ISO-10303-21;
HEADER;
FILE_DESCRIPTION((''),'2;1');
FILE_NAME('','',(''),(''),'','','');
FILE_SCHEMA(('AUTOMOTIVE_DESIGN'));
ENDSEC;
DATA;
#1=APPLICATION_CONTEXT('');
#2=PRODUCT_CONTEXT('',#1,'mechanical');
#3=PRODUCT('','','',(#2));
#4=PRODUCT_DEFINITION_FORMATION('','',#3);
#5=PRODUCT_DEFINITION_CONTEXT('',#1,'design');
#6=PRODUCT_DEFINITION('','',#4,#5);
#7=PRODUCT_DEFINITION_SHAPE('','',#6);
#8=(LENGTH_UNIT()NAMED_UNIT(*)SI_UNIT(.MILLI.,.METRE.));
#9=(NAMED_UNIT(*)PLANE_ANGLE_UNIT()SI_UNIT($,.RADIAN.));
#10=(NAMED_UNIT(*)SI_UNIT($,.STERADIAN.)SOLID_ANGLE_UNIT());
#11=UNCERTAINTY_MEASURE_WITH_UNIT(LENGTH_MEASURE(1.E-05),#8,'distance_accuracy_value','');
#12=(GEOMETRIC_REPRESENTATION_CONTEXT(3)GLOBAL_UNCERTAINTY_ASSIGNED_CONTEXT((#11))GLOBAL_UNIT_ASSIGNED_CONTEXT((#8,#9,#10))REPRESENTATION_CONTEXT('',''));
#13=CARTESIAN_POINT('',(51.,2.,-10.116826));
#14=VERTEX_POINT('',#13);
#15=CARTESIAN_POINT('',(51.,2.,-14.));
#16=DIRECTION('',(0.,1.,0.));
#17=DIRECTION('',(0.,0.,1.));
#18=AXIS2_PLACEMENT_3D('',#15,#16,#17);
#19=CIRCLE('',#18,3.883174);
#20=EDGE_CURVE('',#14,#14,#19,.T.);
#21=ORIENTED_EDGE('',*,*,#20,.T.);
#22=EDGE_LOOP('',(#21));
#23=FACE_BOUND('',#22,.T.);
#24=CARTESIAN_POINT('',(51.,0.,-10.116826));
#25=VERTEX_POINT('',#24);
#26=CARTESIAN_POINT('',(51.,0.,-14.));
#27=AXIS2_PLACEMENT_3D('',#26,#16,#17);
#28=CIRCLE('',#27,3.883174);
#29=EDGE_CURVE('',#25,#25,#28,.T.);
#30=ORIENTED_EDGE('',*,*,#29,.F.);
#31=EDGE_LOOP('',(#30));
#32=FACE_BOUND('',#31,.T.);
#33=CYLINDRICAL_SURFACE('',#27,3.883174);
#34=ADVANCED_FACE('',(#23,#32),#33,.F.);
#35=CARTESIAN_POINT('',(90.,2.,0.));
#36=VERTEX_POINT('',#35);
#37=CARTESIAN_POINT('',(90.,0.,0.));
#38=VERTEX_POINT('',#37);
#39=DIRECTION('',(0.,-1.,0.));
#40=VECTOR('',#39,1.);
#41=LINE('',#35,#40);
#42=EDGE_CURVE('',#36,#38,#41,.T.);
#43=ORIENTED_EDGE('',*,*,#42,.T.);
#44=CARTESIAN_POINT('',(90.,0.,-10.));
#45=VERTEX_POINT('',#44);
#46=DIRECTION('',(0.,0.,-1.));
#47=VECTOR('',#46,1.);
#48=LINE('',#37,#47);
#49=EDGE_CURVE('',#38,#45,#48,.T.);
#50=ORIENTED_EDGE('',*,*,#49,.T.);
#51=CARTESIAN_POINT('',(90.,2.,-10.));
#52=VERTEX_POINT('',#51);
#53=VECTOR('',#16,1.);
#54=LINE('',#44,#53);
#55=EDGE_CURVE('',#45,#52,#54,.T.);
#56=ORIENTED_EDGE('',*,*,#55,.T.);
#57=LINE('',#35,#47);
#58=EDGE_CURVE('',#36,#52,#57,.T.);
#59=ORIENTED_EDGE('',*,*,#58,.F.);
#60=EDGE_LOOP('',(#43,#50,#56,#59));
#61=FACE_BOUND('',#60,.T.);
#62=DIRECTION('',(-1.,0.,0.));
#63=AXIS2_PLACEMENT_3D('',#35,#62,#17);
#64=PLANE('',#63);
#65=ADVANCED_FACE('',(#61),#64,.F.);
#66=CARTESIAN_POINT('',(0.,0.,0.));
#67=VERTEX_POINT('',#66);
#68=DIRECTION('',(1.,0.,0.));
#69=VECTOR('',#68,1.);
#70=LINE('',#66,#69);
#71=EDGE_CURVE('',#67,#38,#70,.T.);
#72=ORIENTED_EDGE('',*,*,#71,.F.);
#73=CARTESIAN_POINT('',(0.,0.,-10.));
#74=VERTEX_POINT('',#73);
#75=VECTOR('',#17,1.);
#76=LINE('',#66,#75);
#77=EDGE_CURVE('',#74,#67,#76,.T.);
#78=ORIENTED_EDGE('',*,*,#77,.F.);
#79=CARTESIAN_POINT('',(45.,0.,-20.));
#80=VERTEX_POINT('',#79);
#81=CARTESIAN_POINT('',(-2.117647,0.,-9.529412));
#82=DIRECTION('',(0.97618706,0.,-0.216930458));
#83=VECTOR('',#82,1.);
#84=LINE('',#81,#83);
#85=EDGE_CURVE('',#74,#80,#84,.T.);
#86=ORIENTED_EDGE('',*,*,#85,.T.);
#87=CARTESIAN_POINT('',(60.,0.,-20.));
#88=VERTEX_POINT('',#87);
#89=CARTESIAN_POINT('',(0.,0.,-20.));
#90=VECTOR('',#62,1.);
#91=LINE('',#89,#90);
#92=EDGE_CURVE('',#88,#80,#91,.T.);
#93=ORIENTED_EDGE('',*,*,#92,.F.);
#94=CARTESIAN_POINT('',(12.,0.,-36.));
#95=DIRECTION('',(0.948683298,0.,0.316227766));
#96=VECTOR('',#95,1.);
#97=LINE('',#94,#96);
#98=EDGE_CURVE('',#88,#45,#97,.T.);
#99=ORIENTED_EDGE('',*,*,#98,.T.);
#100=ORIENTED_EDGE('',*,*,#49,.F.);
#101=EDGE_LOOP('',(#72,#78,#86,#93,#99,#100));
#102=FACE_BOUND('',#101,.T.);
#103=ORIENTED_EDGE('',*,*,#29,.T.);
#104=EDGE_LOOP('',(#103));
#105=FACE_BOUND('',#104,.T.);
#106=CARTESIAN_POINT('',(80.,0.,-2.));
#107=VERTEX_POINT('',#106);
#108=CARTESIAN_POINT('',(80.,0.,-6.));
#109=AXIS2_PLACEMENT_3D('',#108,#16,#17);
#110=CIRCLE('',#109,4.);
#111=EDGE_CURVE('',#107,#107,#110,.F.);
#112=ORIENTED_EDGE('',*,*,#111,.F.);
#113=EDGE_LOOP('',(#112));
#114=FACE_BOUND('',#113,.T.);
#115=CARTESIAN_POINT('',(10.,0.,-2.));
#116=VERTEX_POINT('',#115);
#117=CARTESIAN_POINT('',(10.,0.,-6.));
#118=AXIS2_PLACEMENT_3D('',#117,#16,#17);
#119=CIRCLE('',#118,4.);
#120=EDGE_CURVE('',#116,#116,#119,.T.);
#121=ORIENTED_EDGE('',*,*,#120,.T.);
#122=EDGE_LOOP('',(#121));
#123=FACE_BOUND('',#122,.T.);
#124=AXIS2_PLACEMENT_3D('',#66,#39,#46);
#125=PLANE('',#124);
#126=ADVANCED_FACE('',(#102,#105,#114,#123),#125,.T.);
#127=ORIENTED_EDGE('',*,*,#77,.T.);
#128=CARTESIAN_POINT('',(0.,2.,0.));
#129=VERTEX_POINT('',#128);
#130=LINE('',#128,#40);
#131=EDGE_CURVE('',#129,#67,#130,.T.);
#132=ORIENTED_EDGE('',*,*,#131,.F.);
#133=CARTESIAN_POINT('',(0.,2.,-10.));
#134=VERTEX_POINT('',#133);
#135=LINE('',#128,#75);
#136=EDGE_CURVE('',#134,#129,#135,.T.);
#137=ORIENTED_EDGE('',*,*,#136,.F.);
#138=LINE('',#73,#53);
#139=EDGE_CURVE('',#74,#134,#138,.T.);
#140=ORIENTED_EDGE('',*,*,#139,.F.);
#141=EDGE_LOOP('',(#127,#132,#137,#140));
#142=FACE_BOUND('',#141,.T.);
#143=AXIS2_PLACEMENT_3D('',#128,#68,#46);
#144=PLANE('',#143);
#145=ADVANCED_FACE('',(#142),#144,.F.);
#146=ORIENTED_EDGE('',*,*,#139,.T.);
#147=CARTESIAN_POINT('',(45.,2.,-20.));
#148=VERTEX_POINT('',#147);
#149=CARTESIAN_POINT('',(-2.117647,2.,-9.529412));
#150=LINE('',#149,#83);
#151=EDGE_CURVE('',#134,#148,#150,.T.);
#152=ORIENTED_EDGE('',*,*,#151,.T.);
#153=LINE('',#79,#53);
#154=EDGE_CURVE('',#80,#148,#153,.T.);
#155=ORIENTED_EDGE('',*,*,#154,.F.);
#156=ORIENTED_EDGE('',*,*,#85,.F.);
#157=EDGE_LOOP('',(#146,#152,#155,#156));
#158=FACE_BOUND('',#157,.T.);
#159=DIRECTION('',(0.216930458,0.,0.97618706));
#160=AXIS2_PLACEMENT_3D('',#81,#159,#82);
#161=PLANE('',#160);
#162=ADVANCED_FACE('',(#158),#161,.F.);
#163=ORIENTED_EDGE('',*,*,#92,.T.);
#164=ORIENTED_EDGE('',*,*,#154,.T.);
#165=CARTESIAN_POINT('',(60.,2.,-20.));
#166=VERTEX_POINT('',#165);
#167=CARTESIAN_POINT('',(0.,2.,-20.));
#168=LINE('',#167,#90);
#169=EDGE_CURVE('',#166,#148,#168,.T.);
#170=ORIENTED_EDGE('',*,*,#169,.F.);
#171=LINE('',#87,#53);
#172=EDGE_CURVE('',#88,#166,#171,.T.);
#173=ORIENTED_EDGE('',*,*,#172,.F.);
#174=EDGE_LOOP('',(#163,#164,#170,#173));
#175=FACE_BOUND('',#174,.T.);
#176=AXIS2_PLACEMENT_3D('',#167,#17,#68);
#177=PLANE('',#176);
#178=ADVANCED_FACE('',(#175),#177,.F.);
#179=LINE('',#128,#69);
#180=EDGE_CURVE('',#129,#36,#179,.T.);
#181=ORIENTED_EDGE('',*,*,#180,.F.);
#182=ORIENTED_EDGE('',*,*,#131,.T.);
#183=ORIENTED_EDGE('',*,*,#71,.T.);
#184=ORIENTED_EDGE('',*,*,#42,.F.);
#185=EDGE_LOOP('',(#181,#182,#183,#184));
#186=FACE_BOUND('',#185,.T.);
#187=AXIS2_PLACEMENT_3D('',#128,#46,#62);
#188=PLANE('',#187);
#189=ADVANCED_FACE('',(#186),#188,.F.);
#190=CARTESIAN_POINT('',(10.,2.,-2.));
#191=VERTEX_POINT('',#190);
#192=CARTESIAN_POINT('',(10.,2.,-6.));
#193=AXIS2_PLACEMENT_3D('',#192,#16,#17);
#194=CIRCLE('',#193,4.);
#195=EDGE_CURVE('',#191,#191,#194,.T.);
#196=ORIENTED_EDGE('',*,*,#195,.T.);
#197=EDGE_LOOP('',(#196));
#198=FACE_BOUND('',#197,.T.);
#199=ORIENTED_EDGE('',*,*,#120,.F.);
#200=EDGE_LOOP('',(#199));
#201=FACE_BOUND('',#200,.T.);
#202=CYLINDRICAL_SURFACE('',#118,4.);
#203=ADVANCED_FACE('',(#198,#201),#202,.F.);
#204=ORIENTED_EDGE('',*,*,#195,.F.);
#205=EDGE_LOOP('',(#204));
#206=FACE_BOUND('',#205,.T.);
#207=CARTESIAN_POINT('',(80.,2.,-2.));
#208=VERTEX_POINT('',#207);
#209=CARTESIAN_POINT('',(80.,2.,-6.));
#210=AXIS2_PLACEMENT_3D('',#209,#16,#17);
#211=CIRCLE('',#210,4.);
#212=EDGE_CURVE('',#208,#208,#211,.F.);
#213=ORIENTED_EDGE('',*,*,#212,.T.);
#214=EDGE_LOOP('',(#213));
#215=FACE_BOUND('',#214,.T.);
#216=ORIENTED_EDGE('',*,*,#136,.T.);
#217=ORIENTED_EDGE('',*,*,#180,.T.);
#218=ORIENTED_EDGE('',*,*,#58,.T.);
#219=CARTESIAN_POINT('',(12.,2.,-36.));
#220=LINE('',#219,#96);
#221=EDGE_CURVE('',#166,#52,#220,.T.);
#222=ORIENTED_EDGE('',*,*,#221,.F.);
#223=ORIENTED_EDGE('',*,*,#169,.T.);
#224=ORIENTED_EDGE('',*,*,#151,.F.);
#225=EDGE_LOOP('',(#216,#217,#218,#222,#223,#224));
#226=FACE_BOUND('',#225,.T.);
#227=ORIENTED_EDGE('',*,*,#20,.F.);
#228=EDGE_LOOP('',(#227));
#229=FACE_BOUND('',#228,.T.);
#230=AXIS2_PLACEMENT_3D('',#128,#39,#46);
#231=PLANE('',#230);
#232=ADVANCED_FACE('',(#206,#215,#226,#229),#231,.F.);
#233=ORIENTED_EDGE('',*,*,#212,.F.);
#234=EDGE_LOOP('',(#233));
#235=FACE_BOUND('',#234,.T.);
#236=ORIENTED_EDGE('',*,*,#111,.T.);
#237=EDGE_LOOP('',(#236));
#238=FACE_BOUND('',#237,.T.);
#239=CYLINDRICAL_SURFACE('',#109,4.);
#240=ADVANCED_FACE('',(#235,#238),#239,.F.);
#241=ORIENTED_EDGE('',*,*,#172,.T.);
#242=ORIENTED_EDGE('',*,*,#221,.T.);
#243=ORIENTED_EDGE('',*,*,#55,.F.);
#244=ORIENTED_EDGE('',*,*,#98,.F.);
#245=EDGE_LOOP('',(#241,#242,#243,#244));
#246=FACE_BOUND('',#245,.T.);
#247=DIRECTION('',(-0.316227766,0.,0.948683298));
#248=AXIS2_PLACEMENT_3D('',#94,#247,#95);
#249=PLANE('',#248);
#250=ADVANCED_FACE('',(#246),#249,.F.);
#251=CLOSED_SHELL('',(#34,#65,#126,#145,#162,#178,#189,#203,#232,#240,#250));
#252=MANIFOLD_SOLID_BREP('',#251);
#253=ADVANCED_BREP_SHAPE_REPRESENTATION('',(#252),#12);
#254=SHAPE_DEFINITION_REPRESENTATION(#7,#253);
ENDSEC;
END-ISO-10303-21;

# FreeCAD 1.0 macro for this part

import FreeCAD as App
import Part
import Sketcher
from FreeCAD import Vector


def add_polygon(sketch, points):
    """Adds a closed chain of lines whose ends are joined by coincident constraints."""
    first, n = sketch.GeometryCount, len(points)
    for a, b in zip(points, points[1:] + points[:1]):
        sketch.addGeometry(Part.LineSegment(App.Vector(*a, 0), App.Vector(*b, 0)), False)
    for i in range(n):
        sketch.addConstraint(Sketcher.Constraint("Coincident", first + i, 2, first + (i + 1) % n, 1))

doc = App.newDocument("Part")
params = doc.addObject("Spreadsheet::Sheet", "Params")
for row, (alias, value) in enumerate([
    ("sketch1_width", "90 mm"),
    ("sketch1_height", "20 mm"),
    ("pad1_length", "2 mm"),
    ("sketch2_diameter", "8 mm"),
    ("sketch2_width", "45 mm"),
    ("sketch2_width2", "30 mm"),
    ("sketch2_height", "10 mm"),
    ("pocket1_length", "2 mm"),
], start=1):
    params.set(f"A{row}", alias)
    params.set(f"B{row}", "=" + value)
    params.setAlias(f"B{row}", alias)

body = doc.addObject("PartDesign::Body", "Body")

# Sketch on XZ plane
sketch1 = body.newObject("Sketcher::SketchObject", "Sketch")
sketch1.AttachmentSupport = (doc.getObject("XZ_Plane"), [""])
sketch1.MapMode = "FlatFace"
add_polygon(sketch1, [(0, -20), (0, 0), (90, 0), (90, -20)])  # lines 0-3
sketch1.addConstraint(Sketcher.Constraint("Vertical", 0))
sketch1.addConstraint(Sketcher.Constraint("Horizontal", 1))
sketch1.addConstraint(Sketcher.Constraint("Vertical", 2))
sketch1.addConstraint(Sketcher.Constraint("Horizontal", 3))
sketch1.addConstraint(Sketcher.Constraint("Coincident", 0, 2, -1, 1))
sketch1.addConstraint(Sketcher.Constraint("DistanceX", 1, 1, 1, 2, 90.0))
sketch1.addConstraint(Sketcher.Constraint("DistanceY", 0, 1, 0, 2, 20.0))
sketch1.setExpression("Constraints[9]", "Params.sketch1_width")
sketch1.setExpression("Constraints[10]", "Params.sketch1_height")
pad1 = body.newObject("PartDesign::Pad", "Pad")
pad1.Profile = sketch1
pad1.setExpression("Length", "Params.pad1_length")
pad1.Reversed = True

# Sketch on XZ plane
sketch2 = body.newObject("Sketcher::SketchObject", "Sketch001")
sketch2.AttachmentSupport = (doc.getObject("XZ_Plane"), [""])
sketch2.MapMode = "FlatFace"
sketch2.AttachmentOffset = App.Placement(Vector(0, 0, -2), App.Rotation())
sketch2.addGeometry(Part.Circle(Vector(10, -6, 0), Vector(0, 0, 1), 4), False)  # 0
sketch2.addGeometry(Part.Circle(Vector(51, -14, 0), Vector(0, 0, 1), 3.9), False)  # 1
sketch2.addGeometry(Part.Circle(Vector(80, -6, 0), Vector(0, 0, 1), 4), False)  # 2
add_polygon(sketch2, [(0, -20), (0, -10), (45, -20)])  # lines 3-5
add_polygon(sketch2, [(90, -20), (60, -20), (90, -10)])  # lines 6-8
sketch2.addConstraint(Sketcher.Constraint("Vertical", 3))
sketch2.addConstraint(Sketcher.Constraint("Horizontal", 5))
sketch2.addConstraint(Sketcher.Constraint("Horizontal", 6))
sketch2.addConstraint(Sketcher.Constraint("Vertical", 8))
sketch2.addConstraint(Sketcher.Constraint("Equal", 0, 2))
sketch2.addConstraint(Sketcher.Constraint("PointOnObject", 3, 2, -2))
sketch2.addConstraint(Sketcher.Constraint("Horizontal", 0, 3, 2, 3))
sketch2.addConstraint(Sketcher.Constraint("Horizontal", 5, 2, 6, 2))
sketch2.addConstraint(Sketcher.Constraint("Horizontal", 3, 2, 7, 2))
sketch2.addConstraint(Sketcher.Constraint("Diameter", 0, 8.0))
sketch2.addConstraint(Sketcher.Constraint("DistanceX", 5, 2, 5, 1, 45.0))
sketch2.addConstraint(Sketcher.Constraint("DistanceX", 6, 2, 6, 1, 30.0))
sketch2.addConstraint(Sketcher.Constraint("DistanceY", 3, 1, 3, 2, 10.0))
sketch2.addConstraint(Sketcher.Constraint("DistanceX", -1, 1, 0, 3, 10.0))
sketch2.addConstraint(Sketcher.Constraint("DistanceY", 0, 3, -1, 1, 6.0))
sketch2.addConstraint(Sketcher.Constraint("DistanceX", -1, 1, 1, 3, 51.0))
sketch2.addConstraint(Sketcher.Constraint("DistanceY", 1, 3, -1, 1, 14.0))
sketch2.addConstraint(Sketcher.Constraint("DistanceX", -1, 1, 2, 3, 80.0))
sketch2.addConstraint(Sketcher.Constraint("DistanceY", 3, 2, -1, 1, 10.0))
sketch2.addConstraint(Sketcher.Constraint("DistanceX", -1, 1, 6, 2, 60.0))
sketch2.addConstraint(Sketcher.Constraint("Diameter", 1, 7.766349))
sketch2.setExpression("Constraints[15]", "Params.sketch2_diameter")
sketch2.setExpression("Constraints[16]", "Params.sketch2_width")
sketch2.setExpression("Constraints[17]", "Params.sketch2_width2")
sketch2.setExpression("Constraints[18]", "Params.sketch2_height")
pocket1 = body.newObject("PartDesign::Pocket", "Pocket")
pocket1.Profile = sketch2
pocket1.setExpression("Length", "Params.pocket1_length")
pocket1.Reversed = True

doc.recompute()
